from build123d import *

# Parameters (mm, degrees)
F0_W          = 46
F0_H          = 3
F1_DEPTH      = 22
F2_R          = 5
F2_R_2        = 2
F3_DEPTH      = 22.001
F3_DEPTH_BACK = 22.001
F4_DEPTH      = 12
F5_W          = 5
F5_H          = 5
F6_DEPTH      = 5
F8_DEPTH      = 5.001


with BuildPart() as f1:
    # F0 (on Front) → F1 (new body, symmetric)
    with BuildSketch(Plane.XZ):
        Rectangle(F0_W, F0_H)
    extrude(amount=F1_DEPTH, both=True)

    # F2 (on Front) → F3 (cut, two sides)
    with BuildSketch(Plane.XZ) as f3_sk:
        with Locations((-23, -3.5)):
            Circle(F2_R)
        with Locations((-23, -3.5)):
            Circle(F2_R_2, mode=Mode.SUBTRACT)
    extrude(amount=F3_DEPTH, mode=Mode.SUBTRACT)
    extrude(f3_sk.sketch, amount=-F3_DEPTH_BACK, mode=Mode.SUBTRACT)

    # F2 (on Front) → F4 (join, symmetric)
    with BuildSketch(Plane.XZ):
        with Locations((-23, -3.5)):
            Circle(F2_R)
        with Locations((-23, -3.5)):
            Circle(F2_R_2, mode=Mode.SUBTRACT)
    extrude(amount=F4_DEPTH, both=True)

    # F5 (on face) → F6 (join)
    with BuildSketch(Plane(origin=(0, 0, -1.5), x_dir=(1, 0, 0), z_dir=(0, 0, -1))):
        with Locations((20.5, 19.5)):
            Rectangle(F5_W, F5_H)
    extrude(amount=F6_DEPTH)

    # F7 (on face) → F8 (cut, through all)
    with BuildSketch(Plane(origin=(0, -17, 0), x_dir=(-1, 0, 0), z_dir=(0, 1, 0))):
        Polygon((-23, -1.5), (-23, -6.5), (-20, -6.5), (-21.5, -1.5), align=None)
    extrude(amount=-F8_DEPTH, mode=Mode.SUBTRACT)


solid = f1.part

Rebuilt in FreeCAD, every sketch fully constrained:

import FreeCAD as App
import Part
import Sketcher
Q = App.Units.Quantity


def add_polygon(sketch, points):
    """Adds a closed chain of lines whose ends are joined by coincident constraints."""
    first, n = sketch.GeometryCount, len(points)
    for a, b in zip(points, points[1:] + points[:1]):
        sketch.addGeometry(Part.LineSegment(App.Vector(*a, 0), App.Vector(*b, 0)), False)
    for i in range(n):
        sketch.addConstraint(Sketcher.Constraint("Coincident", first + i, 2, first + (i + 1) % n, 1))

doc = App.newDocument("Part")
params = doc.addObject("Spreadsheet::Sheet", "Params")
for row, (alias, value) in enumerate([
    ("sketch1_width", "46 mm"),
    ("sketch1_height", "3 mm"),
    ("pad1_length", "44 mm"),
    ("sketch2_diameter", "10 mm"),
    ("sketch2_diameter2", "4 mm"),
    ("sketch3_diameter", "10 mm"),
    ("sketch3_diameter2", "4 mm"),
    ("pad2_length", "24 mm"),
    ("sketch4_width", "5 mm"),
    ("pad3_length", "5 mm"),
    ("sketch5_width", "3 mm"),
    ("sketch5_height", "5 mm"),
    ("sketch5_width2", "1.5 mm"),
], start=1):
    params.set(f"A{row}", alias)
    params.set(f"B{row}", "=" + value)
    params.setAlias(f"B{row}", alias)

body = doc.addObject("PartDesign::Body", "Body")

sketch1 = doc.addObject("Sketcher::SketchObject", "Sketch")
body.addObject(sketch1)
sketch1.AttachmentSupport = (doc.XZ_Plane, [""])
sketch1.MapMode = "FlatFace"
add_polygon(sketch1, [(-23, 1.5), (-23, -1.5), (23, -1.5), (23, 1.5)])
sketch1.addConstraint([
    Sketcher.Constraint("Vertical", 0),
    Sketcher.Constraint("Horizontal", 1),
    Sketcher.Constraint("Vertical", 2),
    Sketcher.Constraint("Horizontal", 3),
    Sketcher.Constraint("Symmetric", 0, 2, 2, 2, -1, 1),
    Sketcher.Constraint("DistanceX", 1, 1, 1, 2, Q("46 mm")),
    Sketcher.Constraint("DistanceY", 0, 2, 0, 1, Q("3 mm")),
])
sketch1.setExpression("Constraints[9]", "Params.sketch1_width")
sketch1.setExpression("Constraints[10]", "Params.sketch1_height")
pad1 = doc.addObject("PartDesign::Pad", "Pad")
body.addObject(pad1)
pad1.Profile = sketch1
pad1.setExpression("Length", "Params.pad1_length")
pad1.Midplane = True

sketch2 = doc.addObject("Sketcher::SketchObject", "Sketch001")
body.addObject(sketch2)
sketch2.AttachmentSupport = (doc.XZ_Plane, [""])
sketch2.MapMode = "FlatFace"
sketch2.addGeometry([
    Part.Circle(App.Vector(-23, -3.5, 0), App.Vector(0, 0, 1), 5),
    Part.Circle(App.Vector(-23, -3.5, 0), App.Vector(0, 0, 1), 2),
], False)
sketch2.addConstraint([
    Sketcher.Constraint("Coincident", 1, 3, 0, 3),
    Sketcher.Constraint("Diameter", 0, Q("10 mm")),
    Sketcher.Constraint("Diameter", 1, Q("4 mm")),
    Sketcher.Constraint("DistanceX", 0, 3, -1, 1, Q("23 mm")),
    Sketcher.Constraint("DistanceY", 0, 3, -1, 1, Q("3.5 mm")),
])
sketch2.setExpression("Constraints[1]", "Params.sketch2_diameter")
sketch2.setExpression("Constraints[2]", "Params.sketch2_diameter2")
pocket1 = doc.addObject("PartDesign::Pocket", "Pocket")
body.addObject(pocket1)
pocket1.Profile = sketch2
pocket1.Type = "ThroughAll"
pocket1.Midplane = True

sketch3 = doc.addObject("Sketcher::SketchObject", "Sketch002")
body.addObject(sketch3)
sketch3.AttachmentSupport = (doc.XZ_Plane, [""])
sketch3.MapMode = "FlatFace"
sketch3.addGeometry([
    Part.Circle(App.Vector(-23, -3.5, 0), App.Vector(0, 0, 1), 5),
    Part.Circle(App.Vector(-23, -3.5, 0), App.Vector(0, 0, 1), 2),
], False)
sketch3.addConstraint([
    Sketcher.Constraint("Coincident", 1, 3, 0, 3),
    Sketcher.Constraint("Diameter", 0, Q("10 mm")),
    Sketcher.Constraint("Diameter", 1, Q("4 mm")),
    Sketcher.Constraint("DistanceX", 0, 3, -1, 1, Q("23 mm")),
    Sketcher.Constraint("DistanceY", 0, 3, -1, 1, Q("3.5 mm")),
])
sketch3.setExpression("Constraints[1]", "Params.sketch3_diameter")
sketch3.setExpression("Constraints[2]", "Params.sketch3_diameter2")
pad2 = doc.addObject("PartDesign::Pad", "Pad001")
body.addObject(pad2)
pad2.Profile = sketch3
pad2.setExpression("Length", "Params.pad2_length")
pad2.Midplane = True

sketch4 = doc.addObject("Sketcher::SketchObject", "Sketch003")
body.addObject(sketch4)
sketch4.AttachmentSupport = (doc.XY_Plane, [""])
sketch4.MapMode = "FlatFace"
sketch4.AttachmentOffset = App.Placement(App.Vector(0, 0, -1.5), App.Rotation())
add_polygon(sketch4, [(18, -22), (18, -17), (23, -17), (23, -22)])
sketch4.addConstraint([
    Sketcher.Constraint("Vertical", 0),
    Sketcher.Constraint("Horizontal", 1),
    Sketcher.Constraint("Vertical", 2),
    Sketcher.Constraint("Horizontal", 3),
    Sketcher.Constraint("Equal", 3, 0),
    Sketcher.Constraint("DistanceX", 1, 1, 1, 2, Q("5 mm")),
    Sketcher.Constraint("DistanceX", -1, 1, 0, 2, Q("18 mm")),
    Sketcher.Constraint("DistanceY", 0, 2, -1, 1, Q("17 mm")),
])
sketch4.setExpression("Constraints[9]", "Params.sketch4_width")
pad3 = doc.addObject("PartDesign::Pad", "Pad002")
body.addObject(pad3)
pad3.Profile = sketch4
pad3.setExpression("Length", "Params.pad3_length")
pad3.Reversed = True

sketch5 = doc.addObject("Sketcher::SketchObject", "Sketch004")
body.addObject(sketch5)
sketch5.AttachmentSupport = (doc.XZ_Plane, [""])
sketch5.MapMode = "FlatFace"
sketch5.AttachmentOffset = App.Placement(App.Vector(0, 0, 17), App.Rotation())
add_polygon(sketch5, [(23, -1.5), (23, -6.5), (20, -6.5), (21.5, -1.5)])
sketch5.addConstraint([
    Sketcher.Constraint("Vertical", 0),
    Sketcher.Constraint("Horizontal", 1),
    Sketcher.Constraint("Horizontal", 3),
    Sketcher.Constraint("DistanceX", 1, 2, 1, 1, Q("3 mm")),
    Sketcher.Constraint("DistanceY", 0, 2, 0, 1, Q("5 mm")),
    Sketcher.Constraint("DistanceX", 3, 1, 3, 2, Q("1.5 mm")),
    Sketcher.Constraint("DistanceX", -1, 1, 0, 2, Q("23 mm")),
    Sketcher.Constraint("DistanceY", 0, 2, -1, 1, Q("6.5 mm")),
])
sketch5.setExpression("Constraints[7]", "Params.sketch5_width")
sketch5.setExpression("Constraints[8]", "Params.sketch5_height")
sketch5.setExpression("Constraints[9]", "Params.sketch5_width2")
pocket2 = doc.addObject("PartDesign::Pocket", "Pocket001")
body.addObject(pocket2)
pocket2.Profile = sketch5
pocket2.Type = "ThroughAll"
pocket2.Reversed = True

doc.recompute()
